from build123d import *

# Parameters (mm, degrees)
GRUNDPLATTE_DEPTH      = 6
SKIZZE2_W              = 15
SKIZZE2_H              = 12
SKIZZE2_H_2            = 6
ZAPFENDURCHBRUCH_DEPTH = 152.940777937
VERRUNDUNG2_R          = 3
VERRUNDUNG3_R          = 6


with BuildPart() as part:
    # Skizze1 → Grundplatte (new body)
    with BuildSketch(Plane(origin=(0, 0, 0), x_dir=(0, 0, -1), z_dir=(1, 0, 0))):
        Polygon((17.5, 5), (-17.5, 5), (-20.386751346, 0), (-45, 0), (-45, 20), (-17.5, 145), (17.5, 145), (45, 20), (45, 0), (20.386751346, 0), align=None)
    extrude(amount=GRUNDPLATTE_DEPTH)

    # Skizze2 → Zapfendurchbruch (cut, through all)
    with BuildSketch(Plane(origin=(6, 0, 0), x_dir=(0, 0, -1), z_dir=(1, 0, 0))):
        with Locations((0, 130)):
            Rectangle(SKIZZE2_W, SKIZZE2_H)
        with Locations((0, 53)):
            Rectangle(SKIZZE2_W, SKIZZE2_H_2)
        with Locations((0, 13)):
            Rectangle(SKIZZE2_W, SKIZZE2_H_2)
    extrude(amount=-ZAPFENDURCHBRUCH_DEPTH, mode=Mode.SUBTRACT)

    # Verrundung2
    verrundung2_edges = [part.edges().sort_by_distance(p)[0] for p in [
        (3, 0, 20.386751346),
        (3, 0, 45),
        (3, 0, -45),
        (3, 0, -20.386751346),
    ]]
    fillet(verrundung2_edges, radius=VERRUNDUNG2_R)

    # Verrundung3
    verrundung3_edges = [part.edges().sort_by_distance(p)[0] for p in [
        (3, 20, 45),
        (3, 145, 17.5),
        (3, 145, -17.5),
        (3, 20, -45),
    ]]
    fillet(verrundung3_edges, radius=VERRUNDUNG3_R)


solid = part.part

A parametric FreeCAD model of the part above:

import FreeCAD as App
import Part
import Sketcher
Q = App.Units.Quantity


def edges_at(feature, points):
    """Names of the edges that pass closest to the given points."""
    edges = feature.Shape.Edges
    near = lambda p: min(range(len(edges)), key=lambda i: edges[i].distToShape(Part.Vertex(*p))[0])
    return sorted({f"Edge{near(p) + 1}" for p in points})

doc = App.newDocument("Part")
body = doc.addObject("PartDesign::Body", "Body")

sketch1 = doc.addObject("Sketcher::SketchObject", "Sketch")
body.addObject(sketch1)
sketch1.AttachmentSupport = (doc.YZ_Plane, [""])
sketch1.MapMode = "FlatFace"
sketch1.addGeometry([
    Part.LineSegment(App.Vector(5, 18, 0), App.Vector(5, -18, 0)),
    Part.LineSegment(App.Vector(5, -18, 0), App.Vector(0, -20, 0)),
    Part.LineSegment(App.Vector(0, -20, 0), App.Vector(0, -45, 0)),
    Part.LineSegment(App.Vector(0, -45, 0), App.Vector(20, -45, 0)),
    Part.LineSegment(App.Vector(20, -45, 0), App.Vector(145, -18, 0)),
    Part.LineSegment(App.Vector(145, -18, 0), App.Vector(145, 18, 0)),
    Part.LineSegment(App.Vector(145, 18, 0), App.Vector(20, 45, 0)),
    Part.LineSegment(App.Vector(20, 45, 0), App.Vector(0, 45, 0)),
    Part.LineSegment(App.Vector(0, 45, 0), App.Vector(0, 20, 0)),
    Part.LineSegment(App.Vector(0, 20, 0), App.Vector(5, 18, 0)),
], False)
sketch1.addConstraint([
    Sketcher.Constraint("Coincident", 0, 2, 1, 1),
    Sketcher.Constraint("Coincident", 1, 2, 2, 1),
    Sketcher.Constraint("Coincident", 2, 2, 3, 1),
    Sketcher.Constraint("Coincident", 3, 2, 4, 1),
    Sketcher.Constraint("Coincident", 4, 2, 5, 1),
    Sketcher.Constraint("Coincident", 5, 2, 6, 1),
    Sketcher.Constraint("Coincident", 6, 2, 7, 1),
    Sketcher.Constraint("Coincident", 7, 2, 8, 1),
    Sketcher.Constraint("Coincident", 8, 2, 9, 1),
    Sketcher.Constraint("Coincident", 9, 2, 0, 1),
    Sketcher.Constraint("Vertical", 0),
    Sketcher.Constraint("Vertical", 2),
    Sketcher.Constraint("Horizontal", 3),
    Sketcher.Constraint("Vertical", 5),
    Sketcher.Constraint("Horizontal", 7),
    Sketcher.Constraint("Vertical", 8),
    Sketcher.Constraint("Symmetric", 2, 2, 7, 2, -1, 1),
    Sketcher.Constraint("Symmetric", 1, 2, 8, 2, -1),
    Sketcher.Constraint("Horizontal", 0, 2, 4, 2),
    Sketcher.Constraint("Horizontal", 5, 2, 9, 2),
    Sketcher.Constraint("Vertical", 3, 2, 6, 2),
    Sketcher.Constraint("Equal", 4, 6),
    Sketcher.Constraint("DistanceX", 3, 1, 3, 2, Q("20 mm")),
    Sketcher.Constraint("DistanceY", 0, 2, 0, 1, Q("35 mm")),
    Sketcher.Constraint("Angle", 1, Q("-150 deg")),
    Sketcher.Constraint("DistanceX", -1, 1, 0, 2, Q("5 mm")),
    Sketcher.Constraint("DistanceY", 2, 2, -1, 1, Q("45 mm")),
    Sketcher.Constraint("DistanceX", -1, 1, 4, 2, Q("145 mm")),
])
pad1 = doc.addObject("PartDesign::Pad", "Pad")
body.addObject(pad1)
pad1.Profile = sketch1
pad1.Length = 6

sketch2 = doc.addObject("Sketcher::SketchObject", "Sketch001")
body.addObject(sketch2)
sketch2.AttachmentSupport = (doc.YZ_Plane, [""])
sketch2.MapMode = "FlatFace"
sketch2.AttachmentOffset = App.Placement(App.Vector(0, 0, 6), App.Rotation())
sketch2.addGeometry([
    Part.LineSegment(App.Vector(136, 8, 0), App.Vector(124, 8, 0)),
    Part.LineSegment(App.Vector(124, 8, 0), App.Vector(124, -8, 0)),
    Part.LineSegment(App.Vector(124, -8, 0), App.Vector(136, -8, 0)),
    Part.LineSegment(App.Vector(136, -8, 0), App.Vector(136, 8, 0)),
    Part.LineSegment(App.Vector(56, 8, 0), App.Vector(50, 8, 0)),
    Part.LineSegment(App.Vector(50, 8, 0), App.Vector(50, -8, 0)),
    Part.LineSegment(App.Vector(50, -8, 0), App.Vector(56, -8, 0)),
    Part.LineSegment(App.Vector(56, -8, 0), App.Vector(56, 8, 0)),
    Part.LineSegment(App.Vector(16, 8, 0), App.Vector(10, 8, 0)),
    Part.LineSegment(App.Vector(10, 8, 0), App.Vector(10, -8, 0)),
    Part.LineSegment(App.Vector(10, -8, 0), App.Vector(16, -8, 0)),
    Part.LineSegment(App.Vector(16, -8, 0), App.Vector(16, 8, 0)),
], False)
sketch2.addConstraint([
    Sketcher.Constraint("Coincident", 0, 2, 1, 1),
    Sketcher.Constraint("Coincident", 1, 2, 2, 1),
    Sketcher.Constraint("Coincident", 2, 2, 3, 1),
    Sketcher.Constraint("Coincident", 3, 2, 0, 1),
    Sketcher.Constraint("Coincident", 4, 2, 5, 1),
    Sketcher.Constraint("Coincident", 5, 2, 6, 1),
    Sketcher.Constraint("Coincident", 6, 2, 7, 1),
    Sketcher.Constraint("Coincident", 7, 2, 4, 1),
    Sketcher.Constraint("Coincident", 8, 2, 9, 1),
    Sketcher.Constraint("Coincident", 9, 2, 10, 1),
    Sketcher.Constraint("Coincident", 10, 2, 11, 1),
    Sketcher.Constraint("Coincident", 11, 2, 8, 1),
    Sketcher.Constraint("Horizontal", 0),
    Sketcher.Constraint("Vertical", 1),
    Sketcher.Constraint("Horizontal", 2),
    Sketcher.Constraint("Vertical", 3),
    Sketcher.Constraint("Horizontal", 4),
    Sketcher.Constraint("Vertical", 5),
    Sketcher.Constraint("Horizontal", 6),
    Sketcher.Constraint("Vertical", 7),
    Sketcher.Constraint("Horizontal", 8),
    Sketcher.Constraint("Vertical", 9),
    Sketcher.Constraint("Horizontal", 10),
    Sketcher.Constraint("Vertical", 11),
    Sketcher.Constraint("Horizontal", 3, 2, 4, 2),
    Sketcher.Constraint("Horizontal", 2, 2, 5, 2),
    Sketcher.Constraint("Horizontal", 7, 2, 8, 2),
    Sketcher.Constraint("Horizontal", 6, 2, 9, 2),
    Sketcher.Constraint("Equal", 6, 8),
    Sketcher.Constraint("DistanceX", 0, 2, 0, 1, Q("12 mm")),
    Sketcher.Constraint("DistanceX", 4, 2, 4, 1, Q("6 mm")),
    Sketcher.Constraint("DistanceY", 1, 2, 1, 1, Q("15 mm")),
    Sketcher.Constraint("DistanceX", -1, 1, 0, 2, Q("124 mm")),
    Sketcher.Constraint("DistanceX", -1, 1, 4, 2, Q("50 mm")),
    Sketcher.Constraint("DistanceX", -1, 1, 8, 2, Q("10 mm")),
    Sketcher.Constraint("DistanceY", -1, 1, 0, 2, Q("7.5 mm")),
])
pocket1 = doc.addObject("PartDesign::Pocket", "Pocket")
body.addObject(pocket1)
pocket1.Profile = sketch2
pocket1.Type = "ThroughAll"
doc.recompute()

fillet = doc.addObject("PartDesign::Fillet", "Fillet")
body.addObject(fillet)
fillet.Base = (pocket1, edges_at(pocket1, [
    (3, 0, 20.387),
    (3, 0, 45),
    (3, 0, -45),
    (3, 0, -20.387),
]))
fillet.Radius = 3
doc.recompute()

fillet2 = doc.addObject("PartDesign::Fillet", "Fillet001")
body.addObject(fillet2)
fillet2.Base = (fillet, edges_at(fillet, [
    (3, 20, 45),
    (3, 145, 17.5),
    (3, 145, -17.5),
    (3, 20, -45),
]))
fillet2.Radius = 6

doc.recompute()
